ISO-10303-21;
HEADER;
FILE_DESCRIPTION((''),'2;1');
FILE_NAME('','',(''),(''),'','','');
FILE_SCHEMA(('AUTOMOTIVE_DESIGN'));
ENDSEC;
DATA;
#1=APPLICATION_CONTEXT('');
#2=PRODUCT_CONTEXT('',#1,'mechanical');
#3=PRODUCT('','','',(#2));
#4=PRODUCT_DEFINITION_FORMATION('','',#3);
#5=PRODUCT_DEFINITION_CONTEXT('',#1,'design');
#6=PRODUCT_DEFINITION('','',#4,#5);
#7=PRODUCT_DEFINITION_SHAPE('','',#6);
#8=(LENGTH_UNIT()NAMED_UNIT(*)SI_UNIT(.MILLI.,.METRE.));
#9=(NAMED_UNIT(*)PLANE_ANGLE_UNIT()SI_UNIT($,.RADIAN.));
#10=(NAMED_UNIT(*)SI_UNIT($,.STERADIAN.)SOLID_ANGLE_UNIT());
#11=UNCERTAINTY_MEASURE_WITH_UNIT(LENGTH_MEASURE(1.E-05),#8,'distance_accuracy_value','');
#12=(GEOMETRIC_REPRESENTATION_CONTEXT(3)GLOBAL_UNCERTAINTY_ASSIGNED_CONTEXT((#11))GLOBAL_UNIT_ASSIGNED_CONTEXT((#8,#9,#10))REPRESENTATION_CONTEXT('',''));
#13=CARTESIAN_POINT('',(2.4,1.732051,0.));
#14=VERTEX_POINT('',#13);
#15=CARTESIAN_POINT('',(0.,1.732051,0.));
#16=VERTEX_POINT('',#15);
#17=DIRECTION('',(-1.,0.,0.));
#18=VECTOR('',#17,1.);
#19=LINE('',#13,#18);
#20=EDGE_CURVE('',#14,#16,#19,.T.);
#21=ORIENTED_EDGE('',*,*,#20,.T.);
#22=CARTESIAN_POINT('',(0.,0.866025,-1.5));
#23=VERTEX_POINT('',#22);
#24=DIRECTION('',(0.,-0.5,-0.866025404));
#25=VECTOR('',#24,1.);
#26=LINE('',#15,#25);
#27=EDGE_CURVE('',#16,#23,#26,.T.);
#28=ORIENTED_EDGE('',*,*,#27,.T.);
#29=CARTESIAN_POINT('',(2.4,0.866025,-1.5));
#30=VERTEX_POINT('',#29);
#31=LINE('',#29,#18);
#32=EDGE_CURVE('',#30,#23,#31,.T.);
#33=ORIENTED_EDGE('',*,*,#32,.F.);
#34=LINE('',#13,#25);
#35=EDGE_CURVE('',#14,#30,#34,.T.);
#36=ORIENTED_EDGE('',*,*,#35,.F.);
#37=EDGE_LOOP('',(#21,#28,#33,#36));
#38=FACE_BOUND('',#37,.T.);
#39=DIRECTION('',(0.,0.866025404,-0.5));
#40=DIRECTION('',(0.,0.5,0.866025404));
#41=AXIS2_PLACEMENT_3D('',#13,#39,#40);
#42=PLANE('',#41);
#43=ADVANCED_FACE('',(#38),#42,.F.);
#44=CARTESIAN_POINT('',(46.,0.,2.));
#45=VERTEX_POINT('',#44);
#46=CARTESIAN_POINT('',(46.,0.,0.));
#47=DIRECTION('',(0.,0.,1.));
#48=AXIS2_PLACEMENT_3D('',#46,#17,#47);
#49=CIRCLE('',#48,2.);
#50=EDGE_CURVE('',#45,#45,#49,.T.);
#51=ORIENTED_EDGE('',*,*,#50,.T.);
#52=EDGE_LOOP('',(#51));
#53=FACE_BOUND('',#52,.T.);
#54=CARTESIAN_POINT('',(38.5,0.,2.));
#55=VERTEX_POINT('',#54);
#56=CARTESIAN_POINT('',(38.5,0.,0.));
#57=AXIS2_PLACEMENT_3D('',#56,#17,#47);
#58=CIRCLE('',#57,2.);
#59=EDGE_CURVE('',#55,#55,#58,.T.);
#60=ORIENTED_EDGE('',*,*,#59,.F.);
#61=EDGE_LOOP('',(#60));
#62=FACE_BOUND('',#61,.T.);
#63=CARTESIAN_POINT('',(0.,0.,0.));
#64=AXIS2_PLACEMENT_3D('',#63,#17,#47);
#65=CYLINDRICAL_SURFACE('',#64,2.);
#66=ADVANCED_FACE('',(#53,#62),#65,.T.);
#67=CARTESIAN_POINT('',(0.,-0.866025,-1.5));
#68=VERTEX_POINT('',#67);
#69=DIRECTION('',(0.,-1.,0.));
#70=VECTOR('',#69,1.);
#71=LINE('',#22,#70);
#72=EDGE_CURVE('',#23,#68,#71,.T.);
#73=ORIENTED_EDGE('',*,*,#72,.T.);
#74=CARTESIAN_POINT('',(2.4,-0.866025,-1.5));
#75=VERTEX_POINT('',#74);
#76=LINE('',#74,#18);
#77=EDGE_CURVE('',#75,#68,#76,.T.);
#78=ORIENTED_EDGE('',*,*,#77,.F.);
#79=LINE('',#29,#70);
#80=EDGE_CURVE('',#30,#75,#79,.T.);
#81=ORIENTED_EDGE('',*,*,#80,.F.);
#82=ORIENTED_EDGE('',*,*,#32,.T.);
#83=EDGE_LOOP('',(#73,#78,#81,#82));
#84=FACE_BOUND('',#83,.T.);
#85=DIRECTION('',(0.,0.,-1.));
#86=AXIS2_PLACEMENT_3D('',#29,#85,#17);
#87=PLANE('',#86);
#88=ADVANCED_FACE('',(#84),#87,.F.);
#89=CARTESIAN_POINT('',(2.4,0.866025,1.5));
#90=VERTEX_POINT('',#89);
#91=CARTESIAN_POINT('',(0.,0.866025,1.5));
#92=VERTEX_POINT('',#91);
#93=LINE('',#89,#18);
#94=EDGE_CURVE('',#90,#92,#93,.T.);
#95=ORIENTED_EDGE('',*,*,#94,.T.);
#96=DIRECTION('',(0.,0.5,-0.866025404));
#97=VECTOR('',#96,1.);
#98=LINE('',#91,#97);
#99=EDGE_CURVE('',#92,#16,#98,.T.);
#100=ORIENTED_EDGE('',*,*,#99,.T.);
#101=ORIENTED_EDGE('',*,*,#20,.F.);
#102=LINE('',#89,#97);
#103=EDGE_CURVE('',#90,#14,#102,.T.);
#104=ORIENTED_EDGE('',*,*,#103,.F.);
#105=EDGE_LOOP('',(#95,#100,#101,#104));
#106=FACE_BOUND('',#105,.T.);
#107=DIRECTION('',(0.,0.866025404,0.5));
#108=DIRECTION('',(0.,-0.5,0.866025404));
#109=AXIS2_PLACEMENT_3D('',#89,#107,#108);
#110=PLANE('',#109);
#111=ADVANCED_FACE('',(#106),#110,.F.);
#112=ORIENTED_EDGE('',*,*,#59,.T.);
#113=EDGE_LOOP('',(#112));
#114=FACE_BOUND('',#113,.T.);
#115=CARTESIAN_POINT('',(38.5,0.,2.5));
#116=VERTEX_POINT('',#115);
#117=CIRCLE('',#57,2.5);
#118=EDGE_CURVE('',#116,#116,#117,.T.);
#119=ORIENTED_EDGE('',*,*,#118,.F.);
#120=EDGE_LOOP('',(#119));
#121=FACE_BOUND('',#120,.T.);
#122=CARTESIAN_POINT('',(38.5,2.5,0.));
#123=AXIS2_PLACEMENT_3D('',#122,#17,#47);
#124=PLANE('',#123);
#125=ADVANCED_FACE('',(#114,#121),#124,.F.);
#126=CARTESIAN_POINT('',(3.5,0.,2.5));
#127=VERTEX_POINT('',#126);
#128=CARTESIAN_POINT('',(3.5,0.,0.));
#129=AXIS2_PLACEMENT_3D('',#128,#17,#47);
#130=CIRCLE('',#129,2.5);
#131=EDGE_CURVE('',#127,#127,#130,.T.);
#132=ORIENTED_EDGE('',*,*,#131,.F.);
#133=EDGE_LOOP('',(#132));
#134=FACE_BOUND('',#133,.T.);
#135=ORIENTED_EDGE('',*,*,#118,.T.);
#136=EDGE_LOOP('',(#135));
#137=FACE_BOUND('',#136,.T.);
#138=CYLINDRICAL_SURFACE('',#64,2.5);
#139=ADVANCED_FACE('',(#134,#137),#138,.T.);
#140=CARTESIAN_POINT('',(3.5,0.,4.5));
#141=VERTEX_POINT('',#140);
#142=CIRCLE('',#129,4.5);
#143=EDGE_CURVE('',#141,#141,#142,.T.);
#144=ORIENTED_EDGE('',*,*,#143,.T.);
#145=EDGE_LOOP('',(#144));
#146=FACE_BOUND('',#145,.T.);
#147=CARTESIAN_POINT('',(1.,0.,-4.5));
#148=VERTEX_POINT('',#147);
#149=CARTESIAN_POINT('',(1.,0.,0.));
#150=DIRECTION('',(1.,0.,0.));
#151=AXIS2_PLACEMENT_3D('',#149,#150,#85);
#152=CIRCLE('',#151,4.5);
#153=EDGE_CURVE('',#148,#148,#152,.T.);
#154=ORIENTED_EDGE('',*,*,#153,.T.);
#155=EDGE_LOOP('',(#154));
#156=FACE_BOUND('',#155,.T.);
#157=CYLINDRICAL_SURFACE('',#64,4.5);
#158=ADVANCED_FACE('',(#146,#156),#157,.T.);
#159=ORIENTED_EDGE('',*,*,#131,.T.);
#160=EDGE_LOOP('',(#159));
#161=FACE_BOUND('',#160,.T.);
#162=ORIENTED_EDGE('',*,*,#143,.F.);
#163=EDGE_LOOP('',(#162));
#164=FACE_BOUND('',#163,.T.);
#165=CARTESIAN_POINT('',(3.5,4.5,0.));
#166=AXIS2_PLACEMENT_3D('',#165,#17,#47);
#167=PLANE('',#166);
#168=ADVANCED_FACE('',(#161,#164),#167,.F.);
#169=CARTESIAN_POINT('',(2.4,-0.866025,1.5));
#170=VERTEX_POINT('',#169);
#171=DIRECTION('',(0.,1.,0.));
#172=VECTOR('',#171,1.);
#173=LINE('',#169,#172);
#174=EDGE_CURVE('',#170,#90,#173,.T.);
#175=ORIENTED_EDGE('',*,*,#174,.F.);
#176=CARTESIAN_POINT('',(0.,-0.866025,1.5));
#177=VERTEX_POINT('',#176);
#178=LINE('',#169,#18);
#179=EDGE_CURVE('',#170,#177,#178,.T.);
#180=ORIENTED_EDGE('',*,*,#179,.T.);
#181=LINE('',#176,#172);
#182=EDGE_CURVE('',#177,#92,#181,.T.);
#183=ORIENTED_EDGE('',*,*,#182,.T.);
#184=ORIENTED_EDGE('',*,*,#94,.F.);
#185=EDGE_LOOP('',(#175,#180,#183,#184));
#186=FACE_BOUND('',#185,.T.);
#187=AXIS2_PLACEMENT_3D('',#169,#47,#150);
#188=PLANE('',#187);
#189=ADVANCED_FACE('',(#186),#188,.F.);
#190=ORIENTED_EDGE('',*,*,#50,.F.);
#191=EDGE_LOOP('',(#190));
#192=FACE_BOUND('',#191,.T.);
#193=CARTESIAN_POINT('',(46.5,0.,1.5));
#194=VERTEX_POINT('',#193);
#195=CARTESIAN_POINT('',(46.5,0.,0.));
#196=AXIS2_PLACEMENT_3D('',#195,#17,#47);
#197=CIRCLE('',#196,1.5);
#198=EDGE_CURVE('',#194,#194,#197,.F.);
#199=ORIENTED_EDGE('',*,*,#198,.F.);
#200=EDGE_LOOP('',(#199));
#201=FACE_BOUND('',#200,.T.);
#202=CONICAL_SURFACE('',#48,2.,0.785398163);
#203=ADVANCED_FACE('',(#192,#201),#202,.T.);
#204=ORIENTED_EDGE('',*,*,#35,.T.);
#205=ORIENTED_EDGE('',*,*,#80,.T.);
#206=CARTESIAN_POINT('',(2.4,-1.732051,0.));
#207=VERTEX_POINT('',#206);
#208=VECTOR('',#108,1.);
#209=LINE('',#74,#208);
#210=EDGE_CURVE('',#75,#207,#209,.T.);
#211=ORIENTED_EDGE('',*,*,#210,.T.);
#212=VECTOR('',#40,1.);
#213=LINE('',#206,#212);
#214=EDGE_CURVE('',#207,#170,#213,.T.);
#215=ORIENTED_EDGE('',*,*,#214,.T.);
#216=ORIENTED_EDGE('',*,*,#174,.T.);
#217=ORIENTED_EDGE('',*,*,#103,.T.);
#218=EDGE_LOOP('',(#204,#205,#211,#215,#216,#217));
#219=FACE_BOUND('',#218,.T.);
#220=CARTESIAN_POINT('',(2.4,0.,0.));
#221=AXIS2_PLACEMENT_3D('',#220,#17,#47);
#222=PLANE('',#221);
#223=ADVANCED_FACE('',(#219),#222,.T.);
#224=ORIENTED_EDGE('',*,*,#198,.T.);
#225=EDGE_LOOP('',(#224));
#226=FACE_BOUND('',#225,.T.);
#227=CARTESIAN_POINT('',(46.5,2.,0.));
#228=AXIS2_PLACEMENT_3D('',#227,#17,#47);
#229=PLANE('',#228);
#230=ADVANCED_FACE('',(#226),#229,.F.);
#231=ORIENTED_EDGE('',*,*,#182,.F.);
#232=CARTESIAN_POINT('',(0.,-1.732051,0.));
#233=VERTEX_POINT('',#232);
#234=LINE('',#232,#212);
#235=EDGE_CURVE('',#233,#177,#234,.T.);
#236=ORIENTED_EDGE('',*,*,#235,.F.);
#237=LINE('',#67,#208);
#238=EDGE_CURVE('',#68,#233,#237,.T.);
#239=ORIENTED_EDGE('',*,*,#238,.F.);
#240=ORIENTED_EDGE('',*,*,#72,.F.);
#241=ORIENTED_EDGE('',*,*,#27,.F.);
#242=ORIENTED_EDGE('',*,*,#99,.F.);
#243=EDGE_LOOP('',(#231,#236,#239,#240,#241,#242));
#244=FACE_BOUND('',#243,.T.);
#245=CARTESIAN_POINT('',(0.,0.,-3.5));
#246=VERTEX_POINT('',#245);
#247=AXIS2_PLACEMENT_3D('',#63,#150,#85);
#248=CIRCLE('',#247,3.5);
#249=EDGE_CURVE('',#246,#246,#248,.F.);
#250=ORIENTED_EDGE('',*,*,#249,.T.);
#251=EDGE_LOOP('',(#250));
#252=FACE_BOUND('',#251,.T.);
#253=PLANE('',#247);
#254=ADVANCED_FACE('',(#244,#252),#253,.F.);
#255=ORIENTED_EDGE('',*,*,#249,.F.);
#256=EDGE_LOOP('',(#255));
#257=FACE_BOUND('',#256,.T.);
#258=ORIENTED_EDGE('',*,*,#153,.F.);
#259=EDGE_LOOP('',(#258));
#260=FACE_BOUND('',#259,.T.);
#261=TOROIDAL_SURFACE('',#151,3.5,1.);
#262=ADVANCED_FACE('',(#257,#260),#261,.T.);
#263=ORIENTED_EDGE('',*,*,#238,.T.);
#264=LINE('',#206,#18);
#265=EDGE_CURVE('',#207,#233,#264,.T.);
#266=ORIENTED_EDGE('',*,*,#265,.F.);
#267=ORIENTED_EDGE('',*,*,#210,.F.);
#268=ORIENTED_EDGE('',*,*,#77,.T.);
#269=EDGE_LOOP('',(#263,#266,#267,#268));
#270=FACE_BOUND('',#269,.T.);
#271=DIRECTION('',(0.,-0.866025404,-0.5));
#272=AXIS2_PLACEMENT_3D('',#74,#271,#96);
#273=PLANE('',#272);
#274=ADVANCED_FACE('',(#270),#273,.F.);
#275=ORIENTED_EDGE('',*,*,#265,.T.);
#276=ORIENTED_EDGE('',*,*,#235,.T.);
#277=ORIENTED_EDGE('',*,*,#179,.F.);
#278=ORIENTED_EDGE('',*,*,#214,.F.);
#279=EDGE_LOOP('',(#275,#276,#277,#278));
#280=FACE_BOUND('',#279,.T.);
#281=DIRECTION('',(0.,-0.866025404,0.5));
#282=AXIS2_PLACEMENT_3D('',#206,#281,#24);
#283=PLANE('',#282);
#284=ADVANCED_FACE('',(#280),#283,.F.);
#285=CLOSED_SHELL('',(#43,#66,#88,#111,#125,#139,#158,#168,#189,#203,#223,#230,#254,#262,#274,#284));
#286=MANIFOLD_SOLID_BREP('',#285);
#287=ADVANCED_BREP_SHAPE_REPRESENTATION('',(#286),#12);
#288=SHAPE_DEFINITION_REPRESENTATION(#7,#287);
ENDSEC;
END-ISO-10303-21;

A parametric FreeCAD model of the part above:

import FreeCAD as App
import Part
import Sketcher

V = App.Vector
Q = App.Units.Quantity


def edges_at(feature, points):
    """Names of the edges that pass closest to the given points."""
    edges = feature.Shape.Edges
    near = lambda p: min(range(len(edges)), key=lambda i: edges[i].distToShape(Part.Vertex(*p))[0])
    return sorted({f"Edge{near(p) + 1}" for p in points})

doc = App.newDocument("Part")
body = doc.addObject("PartDesign::Body", "Body")

# Sketch on XY plane
sketch1 = body.newObject("Sketcher::SketchObject", "Sketch")
sketch1.AttachmentSupport = (doc.getObject("XY_Plane"), [""])
sketch1.MapMode = "FlatFace"
sketch1.addGeometry([
    Part.LineSegment(V(0, 4.5, 0), V(0, 0, 0)),  # 0
    Part.LineSegment(V(0, 0, 0), V(46.5, 0, 0)),  # 1
    Part.LineSegment(V(46.5, 0, 0), V(46.5, 2, 0)),  # 2
    Part.LineSegment(V(46.5, 2, 0), V(38.5, 2, 0)),  # 3
    Part.LineSegment(V(38.5, 2, 0), V(38.5, 2.5, 0)),  # 4
    Part.LineSegment(V(38.5, 2.5, 0), V(3.5, 2.5, 0)),  # 5
    Part.LineSegment(V(3.5, 2.5, 0), V(3.5, 4.5, 0)),  # 6
    Part.LineSegment(V(3.5, 4.5, 0), V(0, 4.5, 0)),  # 7
], False)
sketch1.addConstraint([
    Sketcher.Constraint("Coincident", 0, 2, 1, 1),
    Sketcher.Constraint("Coincident", 1, 2, 2, 1),
    Sketcher.Constraint("Coincident", 2, 2, 3, 1),
    Sketcher.Constraint("Coincident", 3, 2, 4, 1),
    Sketcher.Constraint("Coincident", 4, 2, 5, 1),
    Sketcher.Constraint("Coincident", 5, 2, 6, 1),
    Sketcher.Constraint("Coincident", 6, 2, 7, 1),
    Sketcher.Constraint("Coincident", 7, 2, 0, 1),
    Sketcher.Constraint("Vertical", 0),
    Sketcher.Constraint("Horizontal", 1),
    Sketcher.Constraint("Vertical", 2),
    Sketcher.Constraint("Horizontal", 3),
    Sketcher.Constraint("Vertical", 4),
    Sketcher.Constraint("Horizontal", 5),
    Sketcher.Constraint("Vertical", 6),
    Sketcher.Constraint("Horizontal", 7),
    Sketcher.Constraint("Coincident", 0, 2, -1, 1),
    Sketcher.Constraint("Equal", 2, 6),
    Sketcher.Constraint("DistanceX", 3, 2, 3, 1, 8.0),
    Sketcher.Constraint("DistanceX", 5, 2, 5, 1, 35.0),
    Sketcher.Constraint("DistanceY", 2, 1, 2, 2, 2.0),
    Sketcher.Constraint("DistanceX", 1, 1, 1, 2, 46.5),
    Sketcher.Constraint("DistanceY", 0, 2, 0, 1, 4.5),
])
revolution = body.newObject("PartDesign::Revolution", "Revolution")
revolution.Profile = sketch1
revolution.ReferenceAxis = (sketch1, ["H_Axis"])
revolution.Angle = 360

# Sketch on YZ plane
sketch2 = body.newObject("Sketcher::SketchObject", "Sketch001")
sketch2.AttachmentSupport = (doc.getObject("YZ_Plane"), [""])
sketch2.MapMode = "FlatFace"
sketch2.addGeometry([
    Part.LineSegment(V(1.7, 0, 0), V(0.9, -1.5, 0)),  # 0
    Part.LineSegment(V(0.9, -1.5, 0), V(-0.9, -1.5, 0)),  # 1
    Part.LineSegment(V(-0.9, -1.5, 0), V(-1.7, 0, 0)),  # 2
    Part.LineSegment(V(-1.7, 0, 0), V(-0.9, 1.5, 0)),  # 3
    Part.LineSegment(V(-0.9, 1.5, 0), V(0.9, 1.5, 0)),  # 4
    Part.LineSegment(V(0.9, 1.5, 0), V(1.7, 0, 0)),  # 5
], False)
sketch2.addConstraint([
    Sketcher.Constraint("Coincident", 0, 2, 1, 1),
    Sketcher.Constraint("Coincident", 1, 2, 2, 1),
    Sketcher.Constraint("Coincident", 2, 2, 3, 1),
    Sketcher.Constraint("Coincident", 3, 2, 4, 1),
    Sketcher.Constraint("Coincident", 4, 2, 5, 1),
    Sketcher.Constraint("Coincident", 5, 2, 0, 1),
    Sketcher.Constraint("Horizontal", 1),
    Sketcher.Constraint("Horizontal", 4),
    Sketcher.Constraint("Symmetric", 0, 2, 3, 2, -1, 1),
    Sketcher.Constraint("Symmetric", 2, 2, 5, 2, -1, 1),
    Sketcher.Constraint("PointOnObject", 2, 2, -1),
    Sketcher.Constraint("Parallel", 2, 5),
    Sketcher.Constraint("Vertical", 1, 2, 3, 2),
    Sketcher.Constraint("Angle", 0, Q("-120 deg")),
    Sketcher.Constraint("DistanceY", 1, 2, 3, 2, 3.0),
    Sketcher.Constraint("DistanceX", 1, 2, 1, 1, 1.732051),
])
pocket1 = body.newObject("PartDesign::Pocket", "Pocket")
pocket1.Profile = sketch2
pocket1.Length = 2.4
pocket1.Reversed = True
doc.recompute()

fillet = body.newObject("PartDesign::Fillet", "Fillet")
fillet.Base = (pocket1, edges_at(pocket1, [(0, 0, -4.5)]))
fillet.Radius = 1
doc.recompute()

chamfer = body.newObject("PartDesign::Chamfer", "Chamfer")
chamfer.Base = (fillet, edges_at(fillet, [(46.5, 0, -2)]))
chamfer.Size = 0.5

doc.recompute()
